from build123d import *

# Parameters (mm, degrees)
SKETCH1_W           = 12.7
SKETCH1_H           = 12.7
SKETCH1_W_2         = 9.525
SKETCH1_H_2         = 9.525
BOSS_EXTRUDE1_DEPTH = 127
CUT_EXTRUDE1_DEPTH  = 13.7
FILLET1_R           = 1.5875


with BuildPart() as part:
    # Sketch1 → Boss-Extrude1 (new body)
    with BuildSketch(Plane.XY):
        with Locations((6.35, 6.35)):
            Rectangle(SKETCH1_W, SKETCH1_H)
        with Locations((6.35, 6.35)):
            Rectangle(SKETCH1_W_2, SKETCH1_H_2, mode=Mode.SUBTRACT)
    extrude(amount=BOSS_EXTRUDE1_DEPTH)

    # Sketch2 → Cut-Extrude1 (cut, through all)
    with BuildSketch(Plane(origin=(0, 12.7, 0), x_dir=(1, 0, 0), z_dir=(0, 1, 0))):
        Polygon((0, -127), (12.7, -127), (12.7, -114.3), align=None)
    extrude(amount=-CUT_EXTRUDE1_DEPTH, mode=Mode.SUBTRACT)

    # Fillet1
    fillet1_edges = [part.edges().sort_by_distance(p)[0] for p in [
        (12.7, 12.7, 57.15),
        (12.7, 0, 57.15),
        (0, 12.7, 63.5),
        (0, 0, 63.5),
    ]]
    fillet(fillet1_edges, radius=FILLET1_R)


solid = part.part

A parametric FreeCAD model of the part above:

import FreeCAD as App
import Part
import Sketcher
from FreeCAD import Vector
Q = App.Units.Quantity


def edges_at(feature, points):
    """Names of the edges that pass closest to the given points."""
    edges = feature.Shape.Edges
    near = lambda p: min(range(len(edges)), key=lambda i: edges[i].distToShape(Part.Vertex(*p))[0])
    return sorted({f"Edge{near(p) + 1}" for p in points})


def add_polygon(sketch, points):
    """Adds a closed chain of lines whose ends are joined by coincident constraints."""
    first, n = sketch.GeometryCount, len(points)
    for a, b in zip(points, points[1:] + points[:1]):
        sketch.addGeometry(Part.LineSegment(App.Vector(*a, 0), App.Vector(*b, 0)), False)
    for i in range(n):
        sketch.addConstraint(Sketcher.Constraint("Coincident", first + i, 2, first + (i + 1) % n, 1))

doc = App.newDocument("Part")
params = doc.addObject("Spreadsheet::Sheet", "Params")
for row, (alias, value) in enumerate([
    ("sketch1_width", "0.5 in"),
    ("sketch1_width2", "0.375 in"),
    ("pad1_length", "5 in"),
    ("sketch2_width", "0.5 in"),
    ("fillet_radius", "0.0625 in"),
], start=1):
    params.set(f"A{row}", alias)
    params.set(f"B{row}", "=" + value)
    params.setAlias(f"B{row}", alias)

body = doc.addObject("PartDesign::Body", "Body")

# Sketch on XY plane
sketch1 = doc.addObject("Sketcher::SketchObject", "Sketch")
body.addObject(sketch1)
sketch1.AttachmentSupport = (doc.XY_Plane, [""])
sketch1.MapMode = "FlatFace"
add_polygon(sketch1, [(0, 12.7), (0, 0), (12.7, 0), (12.7, 12.7)])  # lines 0-3
add_polygon(sketch1, [(11.1125, 1.5875), (1.5875, 1.5875), (1.5875, 11.1125), (11.1125, 11.1125)])  # lines 4-7
sketch1.addConstraint(Sketcher.Constraint("Vertical", 0))
sketch1.addConstraint(Sketcher.Constraint("Horizontal", 1))
sketch1.addConstraint(Sketcher.Constraint("Vertical", 2))
sketch1.addConstraint(Sketcher.Constraint("Horizontal", 3))
sketch1.addConstraint(Sketcher.Constraint("Horizontal", 4))
sketch1.addConstraint(Sketcher.Constraint("Vertical", 5))
sketch1.addConstraint(Sketcher.Constraint("Horizontal", 6))
sketch1.addConstraint(Sketcher.Constraint("Vertical", 7))
sketch1.addConstraint(Sketcher.Constraint("Coincident", 0, 2, -1, 1))
sketch1.addConstraint(Sketcher.Constraint("Equal", 3, 0))
sketch1.addConstraint(Sketcher.Constraint("Equal", 6, 5))
sketch1.addConstraint(Sketcher.Constraint("DistanceX", 1, 1, 1, 2, Q("0.5 in")))
sketch1.addConstraint(Sketcher.Constraint("DistanceX", 4, 2, 4, 1, Q("0.375 in")))
sketch1.addConstraint(Sketcher.Constraint("DistanceX", -1, 1, 4, 2, Q("0.0625 in")))
sketch1.addConstraint(Sketcher.Constraint("DistanceY", -1, 1, 4, 2, Q("0.0625 in")))
sketch1.setExpression("Constraints[19]", "Params.sketch1_width")
sketch1.setExpression("Constraints[20]", "Params.sketch1_width2")
pad1 = doc.addObject("PartDesign::Pad", "Pad")
body.addObject(pad1)
pad1.Profile = sketch1
pad1.setExpression("Length", "Params.pad1_length")

# Sketch on XZ plane
sketch2 = doc.addObject("Sketcher::SketchObject", "Sketch001")
body.addObject(sketch2)
sketch2.AttachmentSupport = (doc.XZ_Plane, [""])
sketch2.MapMode = "FlatFace"
sketch2.AttachmentOffset = App.Placement(Vector(0, 0, -0.5 * 25.4), App.Rotation())
add_polygon(sketch2, [(0, 127), (12.7, 127), (12.7, 114.3)])  # lines 0-2
sketch2.addConstraint(Sketcher.Constraint("Horizontal", 0))
sketch2.addConstraint(Sketcher.Constraint("Vertical", 1))
sketch2.addConstraint(Sketcher.Constraint("PointOnObject", 2, 2, -2))
sketch2.addConstraint(Sketcher.Constraint("Equal", 0, 1))
sketch2.addConstraint(Sketcher.Constraint("DistanceX", 0, 1, 0, 2, Q("0.5 in")))
sketch2.addConstraint(Sketcher.Constraint("DistanceY", -1, 1, 0, 2, Q("5 in")))
sketch2.setExpression("Constraints[7]", "Params.sketch2_width")
pocket1 = doc.addObject("PartDesign::Pocket", "Pocket")
body.addObject(pocket1)
pocket1.Profile = sketch2
pocket1.Type = "ThroughAll"
pocket1.Reversed = True
doc.recompute()

fillet = doc.addObject("PartDesign::Fillet", "Fillet")
body.addObject(fillet)
fillet.Base = (pocket1, edges_at(pocket1, [
    (12.7, 12.7, 57.15),
    (12.7, 0, 57.15),
    (0, 12.7, 63.5),
    (0, 0, 63.5),
]))
fillet.setExpression("Radius", "Params.fillet_radius")

doc.recompute()
